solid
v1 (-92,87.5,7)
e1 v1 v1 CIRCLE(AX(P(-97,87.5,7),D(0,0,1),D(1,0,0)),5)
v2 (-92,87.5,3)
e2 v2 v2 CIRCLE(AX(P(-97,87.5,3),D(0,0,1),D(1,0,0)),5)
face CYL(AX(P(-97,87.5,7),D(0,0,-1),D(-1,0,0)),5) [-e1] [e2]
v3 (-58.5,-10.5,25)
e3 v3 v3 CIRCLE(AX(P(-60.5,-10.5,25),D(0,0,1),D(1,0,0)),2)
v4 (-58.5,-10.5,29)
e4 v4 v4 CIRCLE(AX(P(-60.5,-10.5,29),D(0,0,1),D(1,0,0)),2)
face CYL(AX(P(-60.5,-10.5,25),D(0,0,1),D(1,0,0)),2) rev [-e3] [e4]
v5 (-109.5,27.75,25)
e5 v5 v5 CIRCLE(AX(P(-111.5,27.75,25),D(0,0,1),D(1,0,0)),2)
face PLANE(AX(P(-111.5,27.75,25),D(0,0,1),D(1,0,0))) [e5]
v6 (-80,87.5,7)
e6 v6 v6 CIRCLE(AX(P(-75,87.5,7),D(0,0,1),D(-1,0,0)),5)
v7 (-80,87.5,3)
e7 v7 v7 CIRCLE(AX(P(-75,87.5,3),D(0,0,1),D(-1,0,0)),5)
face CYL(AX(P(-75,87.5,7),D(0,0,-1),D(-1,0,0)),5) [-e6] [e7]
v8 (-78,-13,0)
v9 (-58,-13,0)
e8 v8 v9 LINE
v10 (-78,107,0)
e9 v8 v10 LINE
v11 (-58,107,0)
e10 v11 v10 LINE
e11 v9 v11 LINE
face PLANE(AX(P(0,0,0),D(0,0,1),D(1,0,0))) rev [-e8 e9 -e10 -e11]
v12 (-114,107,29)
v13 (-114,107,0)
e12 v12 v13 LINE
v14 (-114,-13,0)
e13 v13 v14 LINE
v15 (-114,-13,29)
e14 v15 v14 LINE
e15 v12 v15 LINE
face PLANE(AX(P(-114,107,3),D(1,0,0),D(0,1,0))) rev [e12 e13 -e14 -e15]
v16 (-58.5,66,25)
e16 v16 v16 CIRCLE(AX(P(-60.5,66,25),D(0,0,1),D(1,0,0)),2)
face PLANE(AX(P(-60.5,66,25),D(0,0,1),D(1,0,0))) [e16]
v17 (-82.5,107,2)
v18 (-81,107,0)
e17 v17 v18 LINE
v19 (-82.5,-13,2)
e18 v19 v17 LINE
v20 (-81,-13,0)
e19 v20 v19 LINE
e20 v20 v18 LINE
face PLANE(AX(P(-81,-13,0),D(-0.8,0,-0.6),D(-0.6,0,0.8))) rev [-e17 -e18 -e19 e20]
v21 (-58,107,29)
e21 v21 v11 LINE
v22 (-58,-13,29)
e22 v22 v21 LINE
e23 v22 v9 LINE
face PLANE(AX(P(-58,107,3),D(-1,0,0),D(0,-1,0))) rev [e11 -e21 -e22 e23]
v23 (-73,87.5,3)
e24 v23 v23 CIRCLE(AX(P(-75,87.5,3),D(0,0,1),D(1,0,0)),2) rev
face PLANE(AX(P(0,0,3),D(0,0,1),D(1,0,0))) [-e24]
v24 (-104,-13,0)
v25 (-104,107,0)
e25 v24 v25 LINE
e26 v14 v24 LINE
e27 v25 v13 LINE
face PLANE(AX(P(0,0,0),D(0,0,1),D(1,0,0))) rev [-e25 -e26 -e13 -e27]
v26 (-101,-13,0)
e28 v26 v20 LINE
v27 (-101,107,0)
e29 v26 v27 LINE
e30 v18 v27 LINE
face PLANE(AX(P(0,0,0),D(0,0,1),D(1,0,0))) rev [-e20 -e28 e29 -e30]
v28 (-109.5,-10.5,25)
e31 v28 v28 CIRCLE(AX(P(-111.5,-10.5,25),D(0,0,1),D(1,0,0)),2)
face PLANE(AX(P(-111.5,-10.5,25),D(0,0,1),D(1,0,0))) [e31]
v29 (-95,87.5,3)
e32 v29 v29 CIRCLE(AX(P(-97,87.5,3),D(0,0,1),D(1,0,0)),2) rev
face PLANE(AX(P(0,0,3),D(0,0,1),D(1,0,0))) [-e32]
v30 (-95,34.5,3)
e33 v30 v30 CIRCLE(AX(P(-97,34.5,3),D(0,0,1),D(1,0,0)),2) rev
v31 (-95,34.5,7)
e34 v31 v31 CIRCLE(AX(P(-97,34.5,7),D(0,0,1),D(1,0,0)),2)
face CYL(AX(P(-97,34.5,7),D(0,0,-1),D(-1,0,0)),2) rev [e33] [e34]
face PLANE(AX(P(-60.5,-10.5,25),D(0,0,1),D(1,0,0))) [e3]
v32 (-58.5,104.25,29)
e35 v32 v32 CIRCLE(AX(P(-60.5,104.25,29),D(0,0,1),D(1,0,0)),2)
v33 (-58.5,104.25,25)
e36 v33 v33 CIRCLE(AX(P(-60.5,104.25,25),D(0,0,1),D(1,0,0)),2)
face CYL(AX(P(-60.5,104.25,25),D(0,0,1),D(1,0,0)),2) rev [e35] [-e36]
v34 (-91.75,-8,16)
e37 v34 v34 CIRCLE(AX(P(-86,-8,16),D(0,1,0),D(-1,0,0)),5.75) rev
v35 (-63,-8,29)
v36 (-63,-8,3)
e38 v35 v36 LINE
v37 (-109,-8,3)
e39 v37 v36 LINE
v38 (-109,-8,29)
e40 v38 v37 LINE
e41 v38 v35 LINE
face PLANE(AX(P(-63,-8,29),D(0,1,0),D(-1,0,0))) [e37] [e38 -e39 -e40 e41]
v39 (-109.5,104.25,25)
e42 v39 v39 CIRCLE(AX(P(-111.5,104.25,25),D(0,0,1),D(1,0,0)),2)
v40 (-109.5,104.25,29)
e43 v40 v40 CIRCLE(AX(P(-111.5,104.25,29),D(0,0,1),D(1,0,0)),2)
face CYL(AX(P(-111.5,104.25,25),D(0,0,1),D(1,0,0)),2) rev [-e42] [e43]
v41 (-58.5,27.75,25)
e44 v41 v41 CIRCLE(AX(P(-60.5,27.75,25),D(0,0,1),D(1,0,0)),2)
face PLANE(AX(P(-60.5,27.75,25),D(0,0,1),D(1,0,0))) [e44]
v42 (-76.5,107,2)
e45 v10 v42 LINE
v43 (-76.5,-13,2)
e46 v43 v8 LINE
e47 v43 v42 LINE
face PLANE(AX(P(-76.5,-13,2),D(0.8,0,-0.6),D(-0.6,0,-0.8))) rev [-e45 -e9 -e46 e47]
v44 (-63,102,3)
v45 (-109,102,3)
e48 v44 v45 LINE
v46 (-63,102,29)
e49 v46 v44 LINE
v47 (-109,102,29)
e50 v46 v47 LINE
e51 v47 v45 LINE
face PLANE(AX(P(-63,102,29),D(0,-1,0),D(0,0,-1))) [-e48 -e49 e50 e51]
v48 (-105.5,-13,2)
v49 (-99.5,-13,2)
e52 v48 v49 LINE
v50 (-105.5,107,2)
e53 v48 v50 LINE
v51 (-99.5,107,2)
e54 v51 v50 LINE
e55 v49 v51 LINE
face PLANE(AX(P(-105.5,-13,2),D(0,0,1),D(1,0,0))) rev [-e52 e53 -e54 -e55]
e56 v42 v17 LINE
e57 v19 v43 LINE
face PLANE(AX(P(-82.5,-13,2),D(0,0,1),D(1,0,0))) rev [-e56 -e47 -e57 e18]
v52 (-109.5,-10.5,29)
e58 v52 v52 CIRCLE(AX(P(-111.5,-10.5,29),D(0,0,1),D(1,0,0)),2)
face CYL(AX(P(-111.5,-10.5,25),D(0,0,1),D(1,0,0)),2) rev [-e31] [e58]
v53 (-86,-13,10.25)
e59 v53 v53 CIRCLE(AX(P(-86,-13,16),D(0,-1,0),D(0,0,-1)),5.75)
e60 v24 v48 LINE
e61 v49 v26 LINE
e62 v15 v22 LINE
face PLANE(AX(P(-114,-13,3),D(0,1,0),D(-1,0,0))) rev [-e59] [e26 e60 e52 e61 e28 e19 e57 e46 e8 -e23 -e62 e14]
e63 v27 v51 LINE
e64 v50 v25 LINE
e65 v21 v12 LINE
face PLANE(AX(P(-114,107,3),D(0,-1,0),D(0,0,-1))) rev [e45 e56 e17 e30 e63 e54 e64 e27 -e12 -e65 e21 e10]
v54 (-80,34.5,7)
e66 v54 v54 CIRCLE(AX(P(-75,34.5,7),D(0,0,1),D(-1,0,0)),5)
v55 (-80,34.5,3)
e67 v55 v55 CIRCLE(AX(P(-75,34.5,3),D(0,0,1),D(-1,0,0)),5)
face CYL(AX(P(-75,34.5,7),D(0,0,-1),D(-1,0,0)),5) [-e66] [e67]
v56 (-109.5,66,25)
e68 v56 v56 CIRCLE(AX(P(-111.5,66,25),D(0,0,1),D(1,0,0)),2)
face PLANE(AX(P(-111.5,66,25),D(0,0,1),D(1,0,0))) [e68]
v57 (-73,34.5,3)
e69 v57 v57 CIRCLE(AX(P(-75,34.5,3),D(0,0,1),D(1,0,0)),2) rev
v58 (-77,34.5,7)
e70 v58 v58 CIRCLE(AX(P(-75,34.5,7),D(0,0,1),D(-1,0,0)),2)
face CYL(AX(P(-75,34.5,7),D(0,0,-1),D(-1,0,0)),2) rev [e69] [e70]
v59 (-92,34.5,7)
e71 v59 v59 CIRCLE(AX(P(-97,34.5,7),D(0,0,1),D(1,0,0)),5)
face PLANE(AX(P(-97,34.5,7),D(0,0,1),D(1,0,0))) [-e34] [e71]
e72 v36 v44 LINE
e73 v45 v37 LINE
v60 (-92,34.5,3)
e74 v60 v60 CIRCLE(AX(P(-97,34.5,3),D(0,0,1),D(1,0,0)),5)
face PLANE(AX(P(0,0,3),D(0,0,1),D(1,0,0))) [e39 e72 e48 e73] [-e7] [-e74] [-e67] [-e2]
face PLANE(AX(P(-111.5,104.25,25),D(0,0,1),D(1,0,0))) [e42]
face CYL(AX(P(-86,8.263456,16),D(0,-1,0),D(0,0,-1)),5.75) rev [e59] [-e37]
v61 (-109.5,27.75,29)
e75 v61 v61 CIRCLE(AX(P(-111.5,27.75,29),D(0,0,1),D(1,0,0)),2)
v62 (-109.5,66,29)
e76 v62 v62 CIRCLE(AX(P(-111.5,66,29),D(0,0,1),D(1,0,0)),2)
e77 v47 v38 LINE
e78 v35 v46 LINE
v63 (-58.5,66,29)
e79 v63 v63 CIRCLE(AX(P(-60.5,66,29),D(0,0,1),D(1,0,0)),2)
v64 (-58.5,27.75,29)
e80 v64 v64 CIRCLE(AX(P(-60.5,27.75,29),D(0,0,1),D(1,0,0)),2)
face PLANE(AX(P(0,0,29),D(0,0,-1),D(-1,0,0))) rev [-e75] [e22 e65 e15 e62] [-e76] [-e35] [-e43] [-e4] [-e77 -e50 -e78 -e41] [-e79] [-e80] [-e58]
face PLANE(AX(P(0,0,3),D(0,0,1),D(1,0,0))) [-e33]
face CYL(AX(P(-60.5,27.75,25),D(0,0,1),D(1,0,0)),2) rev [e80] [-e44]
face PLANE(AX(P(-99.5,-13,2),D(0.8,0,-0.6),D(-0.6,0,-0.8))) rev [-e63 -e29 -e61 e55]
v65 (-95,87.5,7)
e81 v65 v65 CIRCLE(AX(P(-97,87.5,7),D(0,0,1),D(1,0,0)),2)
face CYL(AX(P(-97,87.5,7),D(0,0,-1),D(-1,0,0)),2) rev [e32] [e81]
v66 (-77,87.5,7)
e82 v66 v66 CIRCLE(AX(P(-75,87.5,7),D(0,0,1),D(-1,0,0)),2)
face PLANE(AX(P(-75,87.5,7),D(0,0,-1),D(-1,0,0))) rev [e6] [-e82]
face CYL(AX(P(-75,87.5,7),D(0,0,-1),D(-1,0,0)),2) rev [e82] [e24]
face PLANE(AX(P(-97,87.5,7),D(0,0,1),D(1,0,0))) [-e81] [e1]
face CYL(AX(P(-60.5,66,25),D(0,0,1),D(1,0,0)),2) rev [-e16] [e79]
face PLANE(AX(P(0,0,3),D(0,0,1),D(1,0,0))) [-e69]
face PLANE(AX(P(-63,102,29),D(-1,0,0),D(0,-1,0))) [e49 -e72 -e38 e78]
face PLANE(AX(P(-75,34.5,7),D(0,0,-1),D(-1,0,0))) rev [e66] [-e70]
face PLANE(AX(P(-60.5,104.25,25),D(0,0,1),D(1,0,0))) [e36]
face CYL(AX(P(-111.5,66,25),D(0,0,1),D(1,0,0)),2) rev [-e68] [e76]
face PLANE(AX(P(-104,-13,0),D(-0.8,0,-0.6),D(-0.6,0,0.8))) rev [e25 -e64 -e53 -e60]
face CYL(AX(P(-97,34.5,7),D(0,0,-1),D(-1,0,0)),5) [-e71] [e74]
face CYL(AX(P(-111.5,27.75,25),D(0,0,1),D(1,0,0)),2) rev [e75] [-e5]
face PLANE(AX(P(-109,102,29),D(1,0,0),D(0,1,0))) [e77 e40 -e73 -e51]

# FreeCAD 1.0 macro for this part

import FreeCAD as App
import Part
import Sketcher

doc = App.newDocument("Part")
body = doc.addObject("PartDesign::Body", "Body")

sketch1 = body.newObject("Sketcher::SketchObject", "Sketch")
sketch1.AttachmentSupport = (doc.getObject("XY_Plane"), [""])
sketch1.MapMode = "FlatFace"
sketch1.addGeometry(Part.LineSegment(App.Vector(-114, 107, 0), App.Vector(-114, -13, 0)), False)
sketch1.addGeometry(Part.LineSegment(App.Vector(-114, -13, 0), App.Vector(-58, -13, 0)), False)
sketch1.addGeometry(Part.LineSegment(App.Vector(-58, -13, 0), App.Vector(-58, 107, 0)), False)
sketch1.addGeometry(Part.LineSegment(App.Vector(-58, 107, 0), App.Vector(-114, 107, 0)), False)
sketch1.addConstraint(Sketcher.Constraint("Coincident", 0, 2, 1, 1))
sketch1.addConstraint(Sketcher.Constraint("Coincident", 1, 2, 2, 1))
sketch1.addConstraint(Sketcher.Constraint("Coincident", 2, 2, 3, 1))
sketch1.addConstraint(Sketcher.Constraint("Coincident", 3, 2, 0, 1))
sketch1.addConstraint(Sketcher.Constraint("Vertical", 0))
sketch1.addConstraint(Sketcher.Constraint("Horizontal", 1))
sketch1.addConstraint(Sketcher.Constraint("Vertical", 2))
sketch1.addConstraint(Sketcher.Constraint("Horizontal", 3))
sketch1.addConstraint(Sketcher.Constraint("DistanceX", 1, 1, 1, 2, 56.0))
sketch1.addConstraint(Sketcher.Constraint("DistanceY", 0, 2, 0, 1, 120.0))
sketch1.addConstraint(Sketcher.Constraint("DistanceX", 0, 2, -1, 1, 114.0))
sketch1.addConstraint(Sketcher.Constraint("DistanceY", 0, 2, -1, 1, 13.0))
pad1 = body.newObject("PartDesign::Pad", "Pad")
pad1.Profile = sketch1
pad1.Length = 3
body2 = doc.addObject("PartDesign::Body", "Body001")

sketch2 = body2.newObject("Sketcher::SketchObject", "Sketch001")
sketch2.AttachmentSupport = (doc.getObject("XY_Plane001"), [""])
sketch2.MapMode = "FlatFace"
sketch2.AttachmentOffset = App.Placement(App.Vector(0, 0, 3), App.Rotation())
sketch2.addGeometry(Part.LineSegment(App.Vector(-114, 107, 0), App.Vector(-114, -13, 0)), False)
sketch2.addGeometry(Part.LineSegment(App.Vector(-114, -13, 0), App.Vector(-58, -13, 0)), False)
sketch2.addGeometry(Part.LineSegment(App.Vector(-58, -13, 0), App.Vector(-58, 107, 0)), False)
sketch2.addGeometry(Part.LineSegment(App.Vector(-58, 107, 0), App.Vector(-114, 107, 0)), False)
sketch2.addGeometry(Part.LineSegment(App.Vector(-63, -8, 0), App.Vector(-109, -8, 0)), False)
sketch2.addGeometry(Part.LineSegment(App.Vector(-109, -8, 0), App.Vector(-109, 102, 0)), False)
sketch2.addGeometry(Part.LineSegment(App.Vector(-109, 102, 0), App.Vector(-63, 102, 0)), False)
sketch2.addGeometry(Part.LineSegment(App.Vector(-63, 102, 0), App.Vector(-63, -8, 0)), False)
sketch2.addConstraint(Sketcher.Constraint("Coincident", 0, 2, 1, 1))
sketch2.addConstraint(Sketcher.Constraint("Coincident", 1, 2, 2, 1))
sketch2.addConstraint(Sketcher.Constraint("Coincident", 2, 2, 3, 1))
sketch2.addConstraint(Sketcher.Constraint("Coincident", 3, 2, 0, 1))
sketch2.addConstraint(Sketcher.Constraint("Coincident", 4, 2, 5, 1))
sketch2.addConstraint(Sketcher.Constraint("Coincident", 5, 2, 6, 1))
sketch2.addConstraint(Sketcher.Constraint("Coincident", 6, 2, 7, 1))
sketch2.addConstraint(Sketcher.Constraint("Coincident", 7, 2, 4, 1))
sketch2.addConstraint(Sketcher.Constraint("Vertical", 0))
sketch2.addConstraint(Sketcher.Constraint("Horizontal", 1))
sketch2.addConstraint(Sketcher.Constraint("Vertical", 2))
sketch2.addConstraint(Sketcher.Constraint("Horizontal", 3))
sketch2.addConstraint(Sketcher.Constraint("Horizontal", 4))
sketch2.addConstraint(Sketcher.Constraint("Vertical", 5))
sketch2.addConstraint(Sketcher.Constraint("Horizontal", 6))
sketch2.addConstraint(Sketcher.Constraint("Vertical", 7))
sketch2.addConstraint(Sketcher.Constraint("DistanceX", 1, 1, 1, 2, 56.0))
sketch2.addConstraint(Sketcher.Constraint("DistanceX", 4, 2, 4, 1, 46.0))
sketch2.addConstraint(Sketcher.Constraint("DistanceY", 0, 2, 0, 1, 120.0))
sketch2.addConstraint(Sketcher.Constraint("DistanceY", 5, 1, 5, 2, 110.0))
sketch2.addConstraint(Sketcher.Constraint("DistanceX", 0, 2, -1, 1, 114.0))
sketch2.addConstraint(Sketcher.Constraint("DistanceY", 0, 2, -1, 1, 13.0))
sketch2.addConstraint(Sketcher.Constraint("DistanceX", 4, 2, -1, 1, 109.0))
sketch2.addConstraint(Sketcher.Constraint("DistanceY", 4, 2, -1, 1, 8.0))
pad2 = body2.newObject("PartDesign::Pad", "Pad001")
pad2.Profile = sketch2
pad2.Length = 26

sketch3 = body2.newObject("Sketcher::SketchObject", "Sketch002")
sketch3.AttachmentSupport = (doc.getObject("XZ_Plane001"), [""])
sketch3.MapMode = "FlatFace"
sketch3.AttachmentOffset = App.Placement(App.Vector(0, 0, 13), App.Rotation())
sketch3.addGeometry(Part.Circle(App.Vector(-86, 16, 0), App.Vector(0, 0, 1), 6), False)
sketch3.addConstraint(Sketcher.Constraint("Diameter", 0, 11.5))
sketch3.addConstraint(Sketcher.Constraint("DistanceX", 0, 3, -1, 1, 86.0))
sketch3.addConstraint(Sketcher.Constraint("DistanceY", -1, 1, 0, 3, 16.0))
pocket1 = body2.newObject("PartDesign::Pocket", "Pocket")
pocket1.Profile = sketch3
pocket1.Length = 5
doc.recompute()

boolean = body.newObject("PartDesign::Boolean", "Boolean")
boolean.Type = "Fuse"
boolean.addObjects([body2])

sketch4 = body.newObject("Sketcher::SketchObject", "Sketch003")
sketch4.AttachmentSupport = (doc.getObject("XY_Plane"), [""])
sketch4.MapMode = "FlatFace"
sketch4.AttachmentOffset = App.Placement(App.Vector(0, 0, 3), App.Rotation())
sketch4.addGeometry(Part.Circle(App.Vector(-97, 87.5, 0), App.Vector(0, 0, 1), 5), False)
sketch4.addGeometry(Part.Circle(App.Vector(-97, 87.5, 0), App.Vector(0, 0, 1), 2), False)
sketch4.addGeometry(Part.Circle(App.Vector(-97, 34.5, 0), App.Vector(0, 0, 1), 5), False)
sketch4.addGeometry(Part.Circle(App.Vector(-97, 34.5, 0), App.Vector(0, 0, 1), 2), False)
sketch4.addGeometry(Part.Circle(App.Vector(-75, 34.5, 0), App.Vector(0, 0, 1), 5), False)
sketch4.addGeometry(Part.Circle(App.Vector(-75, 34.5, 0), App.Vector(0, 0, 1), 2), False)
sketch4.addGeometry(Part.Circle(App.Vector(-75, 87.5, 0), App.Vector(0, 0, 1), 5), False)
sketch4.addGeometry(Part.Circle(App.Vector(-75, 87.5, 0), App.Vector(0, 0, 1), 2), False)
sketch4.addConstraint(Sketcher.Constraint("Coincident", 1, 3, 0, 3))
sketch4.addConstraint(Sketcher.Constraint("Coincident", 3, 3, 2, 3))
sketch4.addConstraint(Sketcher.Constraint("Coincident", 5, 3, 4, 3))
sketch4.addConstraint(Sketcher.Constraint("Coincident", 7, 3, 6, 3))
sketch4.addConstraint(Sketcher.Constraint("Equal", 0, 2))
sketch4.addConstraint(Sketcher.Constraint("Equal", 1, 3))
sketch4.addConstraint(Sketcher.Constraint("Equal", 2, 4))
sketch4.addConstraint(Sketcher.Constraint("Equal", 3, 5))
sketch4.addConstraint(Sketcher.Constraint("Equal", 4, 6))
sketch4.addConstraint(Sketcher.Constraint("Equal", 5, 7))
sketch4.addConstraint(Sketcher.Constraint("Horizontal", 3, 3, 4, 3))
sketch4.addConstraint(Sketcher.Constraint("Horizontal", 1, 3, 6, 3))
sketch4.addConstraint(Sketcher.Constraint("Vertical", 1, 3, 2, 3))
sketch4.addConstraint(Sketcher.Constraint("Vertical", 5, 3, 6, 3))
sketch4.addConstraint(Sketcher.Constraint("Diameter", 0, 10.0))
sketch4.addConstraint(Sketcher.Constraint("Diameter", 1, 4.0))
sketch4.addConstraint(Sketcher.Constraint("DistanceX", 0, 3, -1, 1, 97.0))
sketch4.addConstraint(Sketcher.Constraint("DistanceX", 4, 3, -1, 1, 75.0))
sketch4.addConstraint(Sketcher.Constraint("DistanceY", 2, 3, 0, 3, 53.0))
sketch4.addConstraint(Sketcher.Constraint("DistanceY", -1, 1, 0, 3, 87.5))
pad3 = body.newObject("PartDesign::Pad", "Pad002")
pad3.Profile = sketch4
pad3.Length = 4

sketch5 = body.newObject("Sketcher::SketchObject", "Sketch004")
sketch5.AttachmentSupport = (doc.getObject("XY_Plane"), [""])
sketch5.MapMode = "FlatFace"
sketch5.AttachmentOffset = App.Placement(App.Vector(0, 0, 29), App.Rotation())
sketch5.addGeometry(Part.Circle(App.Vector(-111.5, -10.5, 0), App.Vector(0, 0, 1), 2), False)
sketch5.addGeometry(Part.Circle(App.Vector(-60.5, -10.5, 0), App.Vector(0, 0, 1), 2), False)
sketch5.addGeometry(Part.Circle(App.Vector(-60.5, 27.8, 0), App.Vector(0, 0, 1), 2), False)
sketch5.addGeometry(Part.Circle(App.Vector(-60.5, 66, 0), App.Vector(0, 0, 1), 2), False)
sketch5.addGeometry(Part.Circle(App.Vector(-60.5, 104.2, 0), App.Vector(0, 0, 1), 2), False)
sketch5.addGeometry(Part.Circle(App.Vector(-111.5, 27.8, 0), App.Vector(0, 0, 1), 2), False)
sketch5.addGeometry(Part.Circle(App.Vector(-111.5, 66, 0), App.Vector(0, 0, 1), 2), False)
sketch5.addGeometry(Part.Circle(App.Vector(-111.5, 104.2, 0), App.Vector(0, 0, 1), 2), False)
sketch5.addConstraint(Sketcher.Constraint("Equal", 0, 1))
sketch5.addConstraint(Sketcher.Constraint("Equal", 1, 2))
sketch5.addConstraint(Sketcher.Constraint("Equal", 2, 3))
sketch5.addConstraint(Sketcher.Constraint("Equal", 3, 4))
sketch5.addConstraint(Sketcher.Constraint("Equal", 4, 5))
sketch5.addConstraint(Sketcher.Constraint("Equal", 5, 6))
sketch5.addConstraint(Sketcher.Constraint("Equal", 6, 7))
sketch5.addConstraint(Sketcher.Constraint("Horizontal", 0, 3, 1, 3))
sketch5.addConstraint(Sketcher.Constraint("Horizontal", 2, 3, 5, 3))
sketch5.addConstraint(Sketcher.Constraint("Horizontal", 3, 3, 6, 3))
sketch5.addConstraint(Sketcher.Constraint("Horizontal", 4, 3, 7, 3))
sketch5.addConstraint(Sketcher.Constraint("Vertical", 1, 3, 2, 3))
sketch5.addConstraint(Sketcher.Constraint("Vertical", 2, 3, 3, 3))
sketch5.addConstraint(Sketcher.Constraint("Vertical", 3, 3, 4, 3))
sketch5.addConstraint(Sketcher.Constraint("Vertical", 0, 3, 5, 3))
sketch5.addConstraint(Sketcher.Constraint("Vertical", 5, 3, 6, 3))
sketch5.addConstraint(Sketcher.Constraint("Vertical", 6, 3, 7, 3))
sketch5.addConstraint(Sketcher.Constraint("Diameter", 0, 4.0))
sketch5.addConstraint(Sketcher.Constraint("DistanceY", -1, 1, 3, 3, 66.0))
sketch5.addConstraint(Sketcher.Constraint("DistanceX", 0, 3, 1, 3, 51.0))
sketch5.addConstraint(Sketcher.Constraint("DistanceX", 0, 3, -1, 1, 111.5))
sketch5.addConstraint(Sketcher.Constraint("DistanceY", 0, 3, -1, 1, 10.5))
sketch5.addConstraint(Sketcher.Constraint("DistanceY", 2, 3, 4, 3, 76.5))
sketch5.addConstraint(Sketcher.Constraint("DistanceY", -1, 1, 2, 3, 27.75))
pocket2 = body.newObject("PartDesign::Pocket", "Pocket001")
pocket2.Profile = sketch5
pocket2.Length = 4

sketch6 = body.newObject("Sketcher::SketchObject", "Sketch005")
sketch6.AttachmentSupport = (doc.getObject("XZ_Plane"), [""])
sketch6.MapMode = "FlatFace"
sketch6.AttachmentOffset = App.Placement(App.Vector(0, 0, -107), App.Rotation())
sketch6.addGeometry(Part.LineSegment(App.Vector(-104, 0, 0), App.Vector(-105.5, 2, 0)), False)
sketch6.addGeometry(Part.LineSegment(App.Vector(-105.5, 2, 0), App.Vector(-99.5, 2, 0)), False)
sketch6.addGeometry(Part.LineSegment(App.Vector(-99.5, 2, 0), App.Vector(-101, 0, 0)), False)
sketch6.addGeometry(Part.LineSegment(App.Vector(-101, 0, 0), App.Vector(-104, 0, 0)), False)
sketch6.addGeometry(Part.LineSegment(App.Vector(-81, 0, 0), App.Vector(-82.5, 2, 0)), False)
sketch6.addGeometry(Part.LineSegment(App.Vector(-82.5, 2, 0), App.Vector(-76.5, 2, 0)), False)
sketch6.addGeometry(Part.LineSegment(App.Vector(-76.5, 2, 0), App.Vector(-78, 0, 0)), False)
sketch6.addGeometry(Part.LineSegment(App.Vector(-78, 0, 0), App.Vector(-81, 0, 0)), False)
sketch6.addConstraint(Sketcher.Constraint("Coincident", 0, 2, 1, 1))
sketch6.addConstraint(Sketcher.Constraint("Coincident", 1, 2, 2, 1))
sketch6.addConstraint(Sketcher.Constraint("Coincident", 2, 2, 3, 1))
sketch6.addConstraint(Sketcher.Constraint("Coincident", 3, 2, 0, 1))
sketch6.addConstraint(Sketcher.Constraint("Coincident", 4, 2, 5, 1))
sketch6.addConstraint(Sketcher.Constraint("Coincident", 5, 2, 6, 1))
sketch6.addConstraint(Sketcher.Constraint("Coincident", 6, 2, 7, 1))
sketch6.addConstraint(Sketcher.Constraint("Coincident", 7, 2, 4, 1))
sketch6.addConstraint(Sketcher.Constraint("Horizontal", 1))
sketch6.addConstraint(Sketcher.Constraint("Horizontal", 3))
sketch6.addConstraint(Sketcher.Constraint("Horizontal", 5))
sketch6.addConstraint(Sketcher.Constraint("Horizontal", 7))
sketch6.addConstraint(Sketcher.Constraint("PointOnObject", 2, 2, -1))
sketch6.addConstraint(Sketcher.Constraint("PointOnObject", 6, 2, -1))
sketch6.addConstraint(Sketcher.Constraint("Parallel", 0, 4))
sketch6.addConstraint(Sketcher.Constraint("Parallel", 2, 6))
sketch6.addConstraint(Sketcher.Constraint("Horizontal", 1, 2, 4, 2))
sketch6.addConstraint(Sketcher.Constraint("Equal", 1, 5))
sketch6.addConstraint(Sketcher.Constraint("Equal", 0, 2))
sketch6.addConstraint(Sketcher.Constraint("DistanceX", 1, 1, 1, 2, 6.0))
sketch6.addConstraint(Sketcher.Constraint("DistanceX", 3, 2, 3, 1, 3.0))
sketch6.addConstraint(Sketcher.Constraint("DistanceY", -1, 1, 0, 2, 2.0))
sketch6.addConstraint(Sketcher.Constraint("DistanceX", 2, 2, -1, 1, 101.0))
sketch6.addConstraint(Sketcher.Constraint("DistanceX", 6, 2, -1, 1, 78.0))
pocket3 = body.newObject("PartDesign::Pocket", "Pocket002")
pocket3.Profile = sketch6
pocket3.Type = "ThroughAll"
pocket3.Midplane = True

doc.recompute()
